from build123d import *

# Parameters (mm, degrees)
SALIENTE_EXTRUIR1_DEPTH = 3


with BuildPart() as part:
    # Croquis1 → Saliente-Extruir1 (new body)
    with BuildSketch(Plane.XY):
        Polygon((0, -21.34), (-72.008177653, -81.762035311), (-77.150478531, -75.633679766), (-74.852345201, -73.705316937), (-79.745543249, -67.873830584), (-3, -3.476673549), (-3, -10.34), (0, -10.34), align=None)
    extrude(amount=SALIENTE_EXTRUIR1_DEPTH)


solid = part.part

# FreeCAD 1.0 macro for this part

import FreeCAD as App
import Part
import Sketcher
from FreeCAD import Vector
Q = App.Units.Quantity

doc = App.newDocument("Part")
body = doc.addObject("PartDesign::Body", "Body")

# Sketch on XY plane
sketch1 = body.newObject("Sketcher::SketchObject", "Sketch")
sketch1.AttachmentSupport = (doc.getObject("XY_Plane"), [""])
sketch1.MapMode = "FlatFace"
sketch1.addGeometry([
    Part.LineSegment(Vector(-72, -81.8, 0), Vector(0, -21.3, 0)),  # 0
    Part.LineSegment(Vector(0, -21.3, 0), Vector(0, -10.3, 0)),  # 1
    Part.LineSegment(Vector(0, -10.3, 0), Vector(-3, -10.3, 0)),  # 2
    Part.LineSegment(Vector(-3, -10.3, 0), Vector(-3, -3.5, 0)),  # 3
    Part.LineSegment(Vector(-3, -3.5, 0), Vector(-79.7, -67.9, 0)),  # 4
    Part.LineSegment(Vector(-79.7, -67.9, 0), Vector(-74.9, -73.7, 0)),  # 5
    Part.LineSegment(Vector(-74.9, -73.7, 0), Vector(-77.2, -75.6, 0)),  # 6
    Part.LineSegment(Vector(-77.2, -75.6, 0), Vector(-72, -81.8, 0)),  # 7
], False)
sketch1.addConstraint([
    Sketcher.Constraint("Coincident", 0, 2, 1, 1),
    Sketcher.Constraint("Coincident", 1, 2, 2, 1),
    Sketcher.Constraint("Coincident", 2, 2, 3, 1),
    Sketcher.Constraint("Coincident", 3, 2, 4, 1),
    Sketcher.Constraint("Coincident", 4, 2, 5, 1),
    Sketcher.Constraint("Coincident", 5, 2, 6, 1),
    Sketcher.Constraint("Coincident", 6, 2, 7, 1),
    Sketcher.Constraint("Coincident", 7, 2, 0, 1),
    Sketcher.Constraint("Vertical", 1),
    Sketcher.Constraint("Horizontal", 2),
    Sketcher.Constraint("Vertical", 3),
    Sketcher.Constraint("PointOnObject", 0, 2, -2),
    Sketcher.Constraint("Parallel", 0, 4),
    Sketcher.Constraint("Perpendicular", 4, 5),
    Sketcher.Constraint("Perpendicular", 5, 6),
    Sketcher.Constraint("Perpendicular", 6, 7),
    Sketcher.Constraint("DistanceX", 2, 2, 2, 1, Q("3 mm")),
    Sketcher.Constraint("DistanceY", 1, 1, 1, 2, Q("11 mm")),
    Sketcher.Constraint("Angle", 0, Q("40 deg")),
    Sketcher.Constraint("Distance", 0, Q("94 mm")),
    Sketcher.Constraint("Distance", 6, Q("3 mm")),
    Sketcher.Constraint("Distance", 7, Q("8 mm")),
    Sketcher.Constraint("DistanceY", 0, 2, -1, 1, Q("21.34 mm")),
    Sketcher.Constraint("DistanceX", 4, 2, 5, 2, Q("4.893198 mm")),
])
pad1 = body.newObject("PartDesign::Pad", "Pad")
pad1.Profile = sketch1
pad1.Length = 3

doc.recompute()
